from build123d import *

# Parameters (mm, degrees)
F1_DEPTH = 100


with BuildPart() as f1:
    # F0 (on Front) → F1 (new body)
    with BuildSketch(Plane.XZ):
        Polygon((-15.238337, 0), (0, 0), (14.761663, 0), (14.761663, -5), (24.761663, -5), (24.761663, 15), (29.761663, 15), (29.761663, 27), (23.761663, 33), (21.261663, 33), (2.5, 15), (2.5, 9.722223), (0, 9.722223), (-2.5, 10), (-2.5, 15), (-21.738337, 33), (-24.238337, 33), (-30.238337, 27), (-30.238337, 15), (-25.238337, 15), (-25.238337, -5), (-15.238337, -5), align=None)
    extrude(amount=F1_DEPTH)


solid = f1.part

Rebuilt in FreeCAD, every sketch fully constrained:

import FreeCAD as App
import Part
import Sketcher


def add_polygon(sketch, points):
    """Adds a closed chain of lines whose ends are joined by coincident constraints."""
    first, n = sketch.GeometryCount, len(points)
    for a, b in zip(points, points[1:] + points[:1]):
        sketch.addGeometry(Part.LineSegment(App.Vector(*a, 0), App.Vector(*b, 0)), False)
    for i in range(n):
        sketch.addConstraint(Sketcher.Constraint("Coincident", first + i, 2, first + (i + 1) % n, 1))

doc = App.newDocument("Part")
body = doc.addObject("PartDesign::Body", "Body")

# Sketch on XZ plane
sketch1 = body.newObject("Sketcher::SketchObject", "Sketch")
sketch1.AttachmentSupport = (doc.getObject("XZ_Plane"), [""])
sketch1.MapMode = "FlatFace"
add_polygon(sketch1, [(-15.2, 0), (14.8, 0), (14.8, -5), (24.8, -5), (24.8, 15), (29.8, 15), (29.8, 27), (23.8, 33), (21.3, 33), (2.5, 15), (2.5, 9.7), (0, 9.7), (-2.5, 10), (-2.5, 15), (-21.7, 33), (-24.2, 33), (-30.2, 27), (-30.2, 15), (-25.2, 15), (-25.2, -5), (-15.2, -5)])  # lines 0-20
sketch1.addConstraint([
    Sketcher.Constraint("Horizontal", 0),
    Sketcher.Constraint("Vertical", 1),
    Sketcher.Constraint("Horizontal", 2),
    Sketcher.Constraint("Vertical", 3),
    Sketcher.Constraint("Horizontal", 4),
    Sketcher.Constraint("Vertical", 5),
    Sketcher.Constraint("Horizontal", 7),
    Sketcher.Constraint("Vertical", 9),
    Sketcher.Constraint("Horizontal", 10),
    Sketcher.Constraint("Vertical", 12),
    Sketcher.Constraint("Horizontal", 14),
    Sketcher.Constraint("Vertical", 16),
    Sketcher.Constraint("Horizontal", 17),
    Sketcher.Constraint("Vertical", 18),
    Sketcher.Constraint("Horizontal", 19),
    Sketcher.Constraint("Vertical", 20),
    Sketcher.Constraint("Symmetric", 8, 2, 12, 2, -2),
    Sketcher.Constraint("PointOnObject", 0, 2, -1),
    Sketcher.Constraint("PointOnObject", 10, 2, -2),
    Sketcher.Constraint("Perpendicular", 6, 15),
    Sketcher.Constraint("Horizontal", 4, 2, 8, 2),
    Sketcher.Constraint("Horizontal", 7, 2, 13, 2),
    Sketcher.Constraint("Horizontal", 5, 2, 15, 2),
    Sketcher.Constraint("Horizontal", 12, 2, 16, 2),
    Sketcher.Constraint("Horizontal", 2, 2, 18, 2),
    Sketcher.Constraint("Equal", 7, 10),
    Sketcher.Constraint("Equal", 10, 14),
    Sketcher.Constraint("Equal", 4, 17),
    Sketcher.Constraint("Equal", 2, 19),
    Sketcher.Constraint("Equal", 17, 1),
    Sketcher.Constraint("Equal", 1, 12),
    Sketcher.Constraint("Equal", 6, 15),
    Sketcher.Constraint("DistanceX", 0, 1, 0, 2, 30.0),
    Sketcher.Constraint("DistanceX", 2, 1, 2, 2, 10.0),
    Sketcher.Constraint("DistanceX", 4, 1, 4, 2, 5.0),
    Sketcher.Constraint("DistanceY", 3, 1, 3, 2, 20.0),
    Sketcher.Constraint("DistanceY", 5, 1, 5, 2, 12.0),
    Sketcher.Constraint("Distance", 8, 26.0),
    Sketcher.Constraint("DistanceX", 7, 2, 7, 1, 2.5),
    Sketcher.Constraint("DistanceY", -1, 1, 6, 2, 33.0),
    Sketcher.Constraint("DistanceY", 9, 2, 9, 1, 5.277777),
])
pad1 = body.newObject("PartDesign::Pad", "Pad")
pad1.Profile = sketch1
pad1.Length = 100

doc.recompute()
